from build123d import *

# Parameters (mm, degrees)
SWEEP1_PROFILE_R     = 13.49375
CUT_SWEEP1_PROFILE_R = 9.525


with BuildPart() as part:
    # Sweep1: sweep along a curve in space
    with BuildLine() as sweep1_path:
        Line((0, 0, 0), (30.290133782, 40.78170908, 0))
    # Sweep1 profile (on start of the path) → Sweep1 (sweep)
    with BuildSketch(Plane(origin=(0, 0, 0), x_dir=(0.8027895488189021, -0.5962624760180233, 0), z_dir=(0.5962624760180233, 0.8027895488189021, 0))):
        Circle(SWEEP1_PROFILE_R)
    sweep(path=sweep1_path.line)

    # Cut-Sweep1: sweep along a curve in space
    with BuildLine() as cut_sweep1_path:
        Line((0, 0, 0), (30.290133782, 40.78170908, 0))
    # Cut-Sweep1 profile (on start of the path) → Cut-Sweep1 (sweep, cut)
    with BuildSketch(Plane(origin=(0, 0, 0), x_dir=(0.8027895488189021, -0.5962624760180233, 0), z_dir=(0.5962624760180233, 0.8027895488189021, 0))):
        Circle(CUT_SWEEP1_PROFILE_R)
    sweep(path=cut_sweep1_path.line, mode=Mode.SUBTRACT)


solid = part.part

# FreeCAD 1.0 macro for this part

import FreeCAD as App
import Part
import Sketcher

V = App.Vector
Q = App.Units.Quantity

doc = App.newDocument("Part")
params = doc.addObject("Spreadsheet::Sheet", "Params")
for row, (alias, value) in enumerate([
    ("sketch1_diameter", "1.0625 in"),
    ("sketch2_width", "2 in"),
    ("sketch3_diameter", "0.75 in"),
    ("sketch4_width", "2 in"),
], start=1):
    params.set(f"A{row}", alias)
    params.set(f"B{row}", "=" + value)
    params.setAlias(f"B{row}", alias)

body = doc.addObject("PartDesign::Body", "Body")

sketch1 = body.newObject("Sketcher::SketchObject", "Sketch")
sketch1.Placement = App.Placement(V(0, 0, 0), App.Rotation(V(0.802789549, -0.596262476, 0), V(0, 0, -1), V(0.596262476, 0.802789549, 0), "ZXY"))
sketch1.addGeometry(Part.Circle(V(0, 0, 0), V(0, 0, 1), 13), False)
sketch1.addConstraint(Sketcher.Constraint("Coincident", 0, 3, -1, 1))
sketch1.addConstraint(Sketcher.Constraint("Diameter", 0, Q("1.0625 in")))
sketch1.setExpression("Constraints[1]", "Params.sketch1_diameter")

sketch2 = body.newObject("Sketcher::SketchObject", "Sketch001")
sketch2.Placement = App.Placement(V(0, 0, 0), App.Rotation(V(0.596262476, 0.802789549, 0), V(0, 0, 1), V(0.802789549, -0.596262476, 0), "ZXY"))
sketch2.addGeometry(Part.LineSegment(V(0, 0, 0), V(51, 0, 0)), False)
sketch2.addConstraint(Sketcher.Constraint("Horizontal", 0))
sketch2.addConstraint(Sketcher.Constraint("Coincident", 0, 1, -1, 1))
sketch2.addConstraint(Sketcher.Constraint("DistanceX", 0, 1, 0, 2, Q("2 in")))
sketch2.setExpression("Constraints[2]", "Params.sketch2_width")
doc.recompute()

additivepipe = body.newObject("PartDesign::AdditivePipe", "AdditivePipe")
additivepipe.Profile = sketch1
additivepipe.Spine = (sketch2, ["Edge1"])

sketch3 = body.newObject("Sketcher::SketchObject", "Sketch002")
sketch3.Placement = App.Placement(V(0, 0, 0), App.Rotation(V(0.802789549, -0.596262476, 0), V(0, 0, -1), V(0.596262476, 0.802789549, 0), "ZXY"))
sketch3.addGeometry(Part.Circle(V(0, 0, 0), V(0, 0, 1), 10), False)
sketch3.addConstraint(Sketcher.Constraint("Coincident", 0, 3, -1, 1))
sketch3.addConstraint(Sketcher.Constraint("Diameter", 0, Q("0.75 in")))
sketch3.setExpression("Constraints[1]", "Params.sketch3_diameter")

sketch4 = body.newObject("Sketcher::SketchObject", "Sketch003")
sketch4.Placement = App.Placement(V(0, 0, 0), App.Rotation(V(0.596262476, 0.802789549, 0), V(0, 0, 1), V(0.802789549, -0.596262476, 0), "ZXY"))
sketch4.addGeometry(Part.LineSegment(V(0, 0, 0), V(51, 0, 0)), False)
sketch4.addConstraint(Sketcher.Constraint("Horizontal", 0))
sketch4.addConstraint(Sketcher.Constraint("Coincident", 0, 1, -1, 1))
sketch4.addConstraint(Sketcher.Constraint("DistanceX", 0, 1, 0, 2, Q("2 in")))
sketch4.setExpression("Constraints[2]", "Params.sketch4_width")
doc.recompute()

subtractivepipe = body.newObject("PartDesign::SubtractivePipe", "SubtractivePipe")
subtractivepipe.Profile = sketch3
subtractivepipe.Spine = (sketch4, ["Edge1"])

doc.recompute()
